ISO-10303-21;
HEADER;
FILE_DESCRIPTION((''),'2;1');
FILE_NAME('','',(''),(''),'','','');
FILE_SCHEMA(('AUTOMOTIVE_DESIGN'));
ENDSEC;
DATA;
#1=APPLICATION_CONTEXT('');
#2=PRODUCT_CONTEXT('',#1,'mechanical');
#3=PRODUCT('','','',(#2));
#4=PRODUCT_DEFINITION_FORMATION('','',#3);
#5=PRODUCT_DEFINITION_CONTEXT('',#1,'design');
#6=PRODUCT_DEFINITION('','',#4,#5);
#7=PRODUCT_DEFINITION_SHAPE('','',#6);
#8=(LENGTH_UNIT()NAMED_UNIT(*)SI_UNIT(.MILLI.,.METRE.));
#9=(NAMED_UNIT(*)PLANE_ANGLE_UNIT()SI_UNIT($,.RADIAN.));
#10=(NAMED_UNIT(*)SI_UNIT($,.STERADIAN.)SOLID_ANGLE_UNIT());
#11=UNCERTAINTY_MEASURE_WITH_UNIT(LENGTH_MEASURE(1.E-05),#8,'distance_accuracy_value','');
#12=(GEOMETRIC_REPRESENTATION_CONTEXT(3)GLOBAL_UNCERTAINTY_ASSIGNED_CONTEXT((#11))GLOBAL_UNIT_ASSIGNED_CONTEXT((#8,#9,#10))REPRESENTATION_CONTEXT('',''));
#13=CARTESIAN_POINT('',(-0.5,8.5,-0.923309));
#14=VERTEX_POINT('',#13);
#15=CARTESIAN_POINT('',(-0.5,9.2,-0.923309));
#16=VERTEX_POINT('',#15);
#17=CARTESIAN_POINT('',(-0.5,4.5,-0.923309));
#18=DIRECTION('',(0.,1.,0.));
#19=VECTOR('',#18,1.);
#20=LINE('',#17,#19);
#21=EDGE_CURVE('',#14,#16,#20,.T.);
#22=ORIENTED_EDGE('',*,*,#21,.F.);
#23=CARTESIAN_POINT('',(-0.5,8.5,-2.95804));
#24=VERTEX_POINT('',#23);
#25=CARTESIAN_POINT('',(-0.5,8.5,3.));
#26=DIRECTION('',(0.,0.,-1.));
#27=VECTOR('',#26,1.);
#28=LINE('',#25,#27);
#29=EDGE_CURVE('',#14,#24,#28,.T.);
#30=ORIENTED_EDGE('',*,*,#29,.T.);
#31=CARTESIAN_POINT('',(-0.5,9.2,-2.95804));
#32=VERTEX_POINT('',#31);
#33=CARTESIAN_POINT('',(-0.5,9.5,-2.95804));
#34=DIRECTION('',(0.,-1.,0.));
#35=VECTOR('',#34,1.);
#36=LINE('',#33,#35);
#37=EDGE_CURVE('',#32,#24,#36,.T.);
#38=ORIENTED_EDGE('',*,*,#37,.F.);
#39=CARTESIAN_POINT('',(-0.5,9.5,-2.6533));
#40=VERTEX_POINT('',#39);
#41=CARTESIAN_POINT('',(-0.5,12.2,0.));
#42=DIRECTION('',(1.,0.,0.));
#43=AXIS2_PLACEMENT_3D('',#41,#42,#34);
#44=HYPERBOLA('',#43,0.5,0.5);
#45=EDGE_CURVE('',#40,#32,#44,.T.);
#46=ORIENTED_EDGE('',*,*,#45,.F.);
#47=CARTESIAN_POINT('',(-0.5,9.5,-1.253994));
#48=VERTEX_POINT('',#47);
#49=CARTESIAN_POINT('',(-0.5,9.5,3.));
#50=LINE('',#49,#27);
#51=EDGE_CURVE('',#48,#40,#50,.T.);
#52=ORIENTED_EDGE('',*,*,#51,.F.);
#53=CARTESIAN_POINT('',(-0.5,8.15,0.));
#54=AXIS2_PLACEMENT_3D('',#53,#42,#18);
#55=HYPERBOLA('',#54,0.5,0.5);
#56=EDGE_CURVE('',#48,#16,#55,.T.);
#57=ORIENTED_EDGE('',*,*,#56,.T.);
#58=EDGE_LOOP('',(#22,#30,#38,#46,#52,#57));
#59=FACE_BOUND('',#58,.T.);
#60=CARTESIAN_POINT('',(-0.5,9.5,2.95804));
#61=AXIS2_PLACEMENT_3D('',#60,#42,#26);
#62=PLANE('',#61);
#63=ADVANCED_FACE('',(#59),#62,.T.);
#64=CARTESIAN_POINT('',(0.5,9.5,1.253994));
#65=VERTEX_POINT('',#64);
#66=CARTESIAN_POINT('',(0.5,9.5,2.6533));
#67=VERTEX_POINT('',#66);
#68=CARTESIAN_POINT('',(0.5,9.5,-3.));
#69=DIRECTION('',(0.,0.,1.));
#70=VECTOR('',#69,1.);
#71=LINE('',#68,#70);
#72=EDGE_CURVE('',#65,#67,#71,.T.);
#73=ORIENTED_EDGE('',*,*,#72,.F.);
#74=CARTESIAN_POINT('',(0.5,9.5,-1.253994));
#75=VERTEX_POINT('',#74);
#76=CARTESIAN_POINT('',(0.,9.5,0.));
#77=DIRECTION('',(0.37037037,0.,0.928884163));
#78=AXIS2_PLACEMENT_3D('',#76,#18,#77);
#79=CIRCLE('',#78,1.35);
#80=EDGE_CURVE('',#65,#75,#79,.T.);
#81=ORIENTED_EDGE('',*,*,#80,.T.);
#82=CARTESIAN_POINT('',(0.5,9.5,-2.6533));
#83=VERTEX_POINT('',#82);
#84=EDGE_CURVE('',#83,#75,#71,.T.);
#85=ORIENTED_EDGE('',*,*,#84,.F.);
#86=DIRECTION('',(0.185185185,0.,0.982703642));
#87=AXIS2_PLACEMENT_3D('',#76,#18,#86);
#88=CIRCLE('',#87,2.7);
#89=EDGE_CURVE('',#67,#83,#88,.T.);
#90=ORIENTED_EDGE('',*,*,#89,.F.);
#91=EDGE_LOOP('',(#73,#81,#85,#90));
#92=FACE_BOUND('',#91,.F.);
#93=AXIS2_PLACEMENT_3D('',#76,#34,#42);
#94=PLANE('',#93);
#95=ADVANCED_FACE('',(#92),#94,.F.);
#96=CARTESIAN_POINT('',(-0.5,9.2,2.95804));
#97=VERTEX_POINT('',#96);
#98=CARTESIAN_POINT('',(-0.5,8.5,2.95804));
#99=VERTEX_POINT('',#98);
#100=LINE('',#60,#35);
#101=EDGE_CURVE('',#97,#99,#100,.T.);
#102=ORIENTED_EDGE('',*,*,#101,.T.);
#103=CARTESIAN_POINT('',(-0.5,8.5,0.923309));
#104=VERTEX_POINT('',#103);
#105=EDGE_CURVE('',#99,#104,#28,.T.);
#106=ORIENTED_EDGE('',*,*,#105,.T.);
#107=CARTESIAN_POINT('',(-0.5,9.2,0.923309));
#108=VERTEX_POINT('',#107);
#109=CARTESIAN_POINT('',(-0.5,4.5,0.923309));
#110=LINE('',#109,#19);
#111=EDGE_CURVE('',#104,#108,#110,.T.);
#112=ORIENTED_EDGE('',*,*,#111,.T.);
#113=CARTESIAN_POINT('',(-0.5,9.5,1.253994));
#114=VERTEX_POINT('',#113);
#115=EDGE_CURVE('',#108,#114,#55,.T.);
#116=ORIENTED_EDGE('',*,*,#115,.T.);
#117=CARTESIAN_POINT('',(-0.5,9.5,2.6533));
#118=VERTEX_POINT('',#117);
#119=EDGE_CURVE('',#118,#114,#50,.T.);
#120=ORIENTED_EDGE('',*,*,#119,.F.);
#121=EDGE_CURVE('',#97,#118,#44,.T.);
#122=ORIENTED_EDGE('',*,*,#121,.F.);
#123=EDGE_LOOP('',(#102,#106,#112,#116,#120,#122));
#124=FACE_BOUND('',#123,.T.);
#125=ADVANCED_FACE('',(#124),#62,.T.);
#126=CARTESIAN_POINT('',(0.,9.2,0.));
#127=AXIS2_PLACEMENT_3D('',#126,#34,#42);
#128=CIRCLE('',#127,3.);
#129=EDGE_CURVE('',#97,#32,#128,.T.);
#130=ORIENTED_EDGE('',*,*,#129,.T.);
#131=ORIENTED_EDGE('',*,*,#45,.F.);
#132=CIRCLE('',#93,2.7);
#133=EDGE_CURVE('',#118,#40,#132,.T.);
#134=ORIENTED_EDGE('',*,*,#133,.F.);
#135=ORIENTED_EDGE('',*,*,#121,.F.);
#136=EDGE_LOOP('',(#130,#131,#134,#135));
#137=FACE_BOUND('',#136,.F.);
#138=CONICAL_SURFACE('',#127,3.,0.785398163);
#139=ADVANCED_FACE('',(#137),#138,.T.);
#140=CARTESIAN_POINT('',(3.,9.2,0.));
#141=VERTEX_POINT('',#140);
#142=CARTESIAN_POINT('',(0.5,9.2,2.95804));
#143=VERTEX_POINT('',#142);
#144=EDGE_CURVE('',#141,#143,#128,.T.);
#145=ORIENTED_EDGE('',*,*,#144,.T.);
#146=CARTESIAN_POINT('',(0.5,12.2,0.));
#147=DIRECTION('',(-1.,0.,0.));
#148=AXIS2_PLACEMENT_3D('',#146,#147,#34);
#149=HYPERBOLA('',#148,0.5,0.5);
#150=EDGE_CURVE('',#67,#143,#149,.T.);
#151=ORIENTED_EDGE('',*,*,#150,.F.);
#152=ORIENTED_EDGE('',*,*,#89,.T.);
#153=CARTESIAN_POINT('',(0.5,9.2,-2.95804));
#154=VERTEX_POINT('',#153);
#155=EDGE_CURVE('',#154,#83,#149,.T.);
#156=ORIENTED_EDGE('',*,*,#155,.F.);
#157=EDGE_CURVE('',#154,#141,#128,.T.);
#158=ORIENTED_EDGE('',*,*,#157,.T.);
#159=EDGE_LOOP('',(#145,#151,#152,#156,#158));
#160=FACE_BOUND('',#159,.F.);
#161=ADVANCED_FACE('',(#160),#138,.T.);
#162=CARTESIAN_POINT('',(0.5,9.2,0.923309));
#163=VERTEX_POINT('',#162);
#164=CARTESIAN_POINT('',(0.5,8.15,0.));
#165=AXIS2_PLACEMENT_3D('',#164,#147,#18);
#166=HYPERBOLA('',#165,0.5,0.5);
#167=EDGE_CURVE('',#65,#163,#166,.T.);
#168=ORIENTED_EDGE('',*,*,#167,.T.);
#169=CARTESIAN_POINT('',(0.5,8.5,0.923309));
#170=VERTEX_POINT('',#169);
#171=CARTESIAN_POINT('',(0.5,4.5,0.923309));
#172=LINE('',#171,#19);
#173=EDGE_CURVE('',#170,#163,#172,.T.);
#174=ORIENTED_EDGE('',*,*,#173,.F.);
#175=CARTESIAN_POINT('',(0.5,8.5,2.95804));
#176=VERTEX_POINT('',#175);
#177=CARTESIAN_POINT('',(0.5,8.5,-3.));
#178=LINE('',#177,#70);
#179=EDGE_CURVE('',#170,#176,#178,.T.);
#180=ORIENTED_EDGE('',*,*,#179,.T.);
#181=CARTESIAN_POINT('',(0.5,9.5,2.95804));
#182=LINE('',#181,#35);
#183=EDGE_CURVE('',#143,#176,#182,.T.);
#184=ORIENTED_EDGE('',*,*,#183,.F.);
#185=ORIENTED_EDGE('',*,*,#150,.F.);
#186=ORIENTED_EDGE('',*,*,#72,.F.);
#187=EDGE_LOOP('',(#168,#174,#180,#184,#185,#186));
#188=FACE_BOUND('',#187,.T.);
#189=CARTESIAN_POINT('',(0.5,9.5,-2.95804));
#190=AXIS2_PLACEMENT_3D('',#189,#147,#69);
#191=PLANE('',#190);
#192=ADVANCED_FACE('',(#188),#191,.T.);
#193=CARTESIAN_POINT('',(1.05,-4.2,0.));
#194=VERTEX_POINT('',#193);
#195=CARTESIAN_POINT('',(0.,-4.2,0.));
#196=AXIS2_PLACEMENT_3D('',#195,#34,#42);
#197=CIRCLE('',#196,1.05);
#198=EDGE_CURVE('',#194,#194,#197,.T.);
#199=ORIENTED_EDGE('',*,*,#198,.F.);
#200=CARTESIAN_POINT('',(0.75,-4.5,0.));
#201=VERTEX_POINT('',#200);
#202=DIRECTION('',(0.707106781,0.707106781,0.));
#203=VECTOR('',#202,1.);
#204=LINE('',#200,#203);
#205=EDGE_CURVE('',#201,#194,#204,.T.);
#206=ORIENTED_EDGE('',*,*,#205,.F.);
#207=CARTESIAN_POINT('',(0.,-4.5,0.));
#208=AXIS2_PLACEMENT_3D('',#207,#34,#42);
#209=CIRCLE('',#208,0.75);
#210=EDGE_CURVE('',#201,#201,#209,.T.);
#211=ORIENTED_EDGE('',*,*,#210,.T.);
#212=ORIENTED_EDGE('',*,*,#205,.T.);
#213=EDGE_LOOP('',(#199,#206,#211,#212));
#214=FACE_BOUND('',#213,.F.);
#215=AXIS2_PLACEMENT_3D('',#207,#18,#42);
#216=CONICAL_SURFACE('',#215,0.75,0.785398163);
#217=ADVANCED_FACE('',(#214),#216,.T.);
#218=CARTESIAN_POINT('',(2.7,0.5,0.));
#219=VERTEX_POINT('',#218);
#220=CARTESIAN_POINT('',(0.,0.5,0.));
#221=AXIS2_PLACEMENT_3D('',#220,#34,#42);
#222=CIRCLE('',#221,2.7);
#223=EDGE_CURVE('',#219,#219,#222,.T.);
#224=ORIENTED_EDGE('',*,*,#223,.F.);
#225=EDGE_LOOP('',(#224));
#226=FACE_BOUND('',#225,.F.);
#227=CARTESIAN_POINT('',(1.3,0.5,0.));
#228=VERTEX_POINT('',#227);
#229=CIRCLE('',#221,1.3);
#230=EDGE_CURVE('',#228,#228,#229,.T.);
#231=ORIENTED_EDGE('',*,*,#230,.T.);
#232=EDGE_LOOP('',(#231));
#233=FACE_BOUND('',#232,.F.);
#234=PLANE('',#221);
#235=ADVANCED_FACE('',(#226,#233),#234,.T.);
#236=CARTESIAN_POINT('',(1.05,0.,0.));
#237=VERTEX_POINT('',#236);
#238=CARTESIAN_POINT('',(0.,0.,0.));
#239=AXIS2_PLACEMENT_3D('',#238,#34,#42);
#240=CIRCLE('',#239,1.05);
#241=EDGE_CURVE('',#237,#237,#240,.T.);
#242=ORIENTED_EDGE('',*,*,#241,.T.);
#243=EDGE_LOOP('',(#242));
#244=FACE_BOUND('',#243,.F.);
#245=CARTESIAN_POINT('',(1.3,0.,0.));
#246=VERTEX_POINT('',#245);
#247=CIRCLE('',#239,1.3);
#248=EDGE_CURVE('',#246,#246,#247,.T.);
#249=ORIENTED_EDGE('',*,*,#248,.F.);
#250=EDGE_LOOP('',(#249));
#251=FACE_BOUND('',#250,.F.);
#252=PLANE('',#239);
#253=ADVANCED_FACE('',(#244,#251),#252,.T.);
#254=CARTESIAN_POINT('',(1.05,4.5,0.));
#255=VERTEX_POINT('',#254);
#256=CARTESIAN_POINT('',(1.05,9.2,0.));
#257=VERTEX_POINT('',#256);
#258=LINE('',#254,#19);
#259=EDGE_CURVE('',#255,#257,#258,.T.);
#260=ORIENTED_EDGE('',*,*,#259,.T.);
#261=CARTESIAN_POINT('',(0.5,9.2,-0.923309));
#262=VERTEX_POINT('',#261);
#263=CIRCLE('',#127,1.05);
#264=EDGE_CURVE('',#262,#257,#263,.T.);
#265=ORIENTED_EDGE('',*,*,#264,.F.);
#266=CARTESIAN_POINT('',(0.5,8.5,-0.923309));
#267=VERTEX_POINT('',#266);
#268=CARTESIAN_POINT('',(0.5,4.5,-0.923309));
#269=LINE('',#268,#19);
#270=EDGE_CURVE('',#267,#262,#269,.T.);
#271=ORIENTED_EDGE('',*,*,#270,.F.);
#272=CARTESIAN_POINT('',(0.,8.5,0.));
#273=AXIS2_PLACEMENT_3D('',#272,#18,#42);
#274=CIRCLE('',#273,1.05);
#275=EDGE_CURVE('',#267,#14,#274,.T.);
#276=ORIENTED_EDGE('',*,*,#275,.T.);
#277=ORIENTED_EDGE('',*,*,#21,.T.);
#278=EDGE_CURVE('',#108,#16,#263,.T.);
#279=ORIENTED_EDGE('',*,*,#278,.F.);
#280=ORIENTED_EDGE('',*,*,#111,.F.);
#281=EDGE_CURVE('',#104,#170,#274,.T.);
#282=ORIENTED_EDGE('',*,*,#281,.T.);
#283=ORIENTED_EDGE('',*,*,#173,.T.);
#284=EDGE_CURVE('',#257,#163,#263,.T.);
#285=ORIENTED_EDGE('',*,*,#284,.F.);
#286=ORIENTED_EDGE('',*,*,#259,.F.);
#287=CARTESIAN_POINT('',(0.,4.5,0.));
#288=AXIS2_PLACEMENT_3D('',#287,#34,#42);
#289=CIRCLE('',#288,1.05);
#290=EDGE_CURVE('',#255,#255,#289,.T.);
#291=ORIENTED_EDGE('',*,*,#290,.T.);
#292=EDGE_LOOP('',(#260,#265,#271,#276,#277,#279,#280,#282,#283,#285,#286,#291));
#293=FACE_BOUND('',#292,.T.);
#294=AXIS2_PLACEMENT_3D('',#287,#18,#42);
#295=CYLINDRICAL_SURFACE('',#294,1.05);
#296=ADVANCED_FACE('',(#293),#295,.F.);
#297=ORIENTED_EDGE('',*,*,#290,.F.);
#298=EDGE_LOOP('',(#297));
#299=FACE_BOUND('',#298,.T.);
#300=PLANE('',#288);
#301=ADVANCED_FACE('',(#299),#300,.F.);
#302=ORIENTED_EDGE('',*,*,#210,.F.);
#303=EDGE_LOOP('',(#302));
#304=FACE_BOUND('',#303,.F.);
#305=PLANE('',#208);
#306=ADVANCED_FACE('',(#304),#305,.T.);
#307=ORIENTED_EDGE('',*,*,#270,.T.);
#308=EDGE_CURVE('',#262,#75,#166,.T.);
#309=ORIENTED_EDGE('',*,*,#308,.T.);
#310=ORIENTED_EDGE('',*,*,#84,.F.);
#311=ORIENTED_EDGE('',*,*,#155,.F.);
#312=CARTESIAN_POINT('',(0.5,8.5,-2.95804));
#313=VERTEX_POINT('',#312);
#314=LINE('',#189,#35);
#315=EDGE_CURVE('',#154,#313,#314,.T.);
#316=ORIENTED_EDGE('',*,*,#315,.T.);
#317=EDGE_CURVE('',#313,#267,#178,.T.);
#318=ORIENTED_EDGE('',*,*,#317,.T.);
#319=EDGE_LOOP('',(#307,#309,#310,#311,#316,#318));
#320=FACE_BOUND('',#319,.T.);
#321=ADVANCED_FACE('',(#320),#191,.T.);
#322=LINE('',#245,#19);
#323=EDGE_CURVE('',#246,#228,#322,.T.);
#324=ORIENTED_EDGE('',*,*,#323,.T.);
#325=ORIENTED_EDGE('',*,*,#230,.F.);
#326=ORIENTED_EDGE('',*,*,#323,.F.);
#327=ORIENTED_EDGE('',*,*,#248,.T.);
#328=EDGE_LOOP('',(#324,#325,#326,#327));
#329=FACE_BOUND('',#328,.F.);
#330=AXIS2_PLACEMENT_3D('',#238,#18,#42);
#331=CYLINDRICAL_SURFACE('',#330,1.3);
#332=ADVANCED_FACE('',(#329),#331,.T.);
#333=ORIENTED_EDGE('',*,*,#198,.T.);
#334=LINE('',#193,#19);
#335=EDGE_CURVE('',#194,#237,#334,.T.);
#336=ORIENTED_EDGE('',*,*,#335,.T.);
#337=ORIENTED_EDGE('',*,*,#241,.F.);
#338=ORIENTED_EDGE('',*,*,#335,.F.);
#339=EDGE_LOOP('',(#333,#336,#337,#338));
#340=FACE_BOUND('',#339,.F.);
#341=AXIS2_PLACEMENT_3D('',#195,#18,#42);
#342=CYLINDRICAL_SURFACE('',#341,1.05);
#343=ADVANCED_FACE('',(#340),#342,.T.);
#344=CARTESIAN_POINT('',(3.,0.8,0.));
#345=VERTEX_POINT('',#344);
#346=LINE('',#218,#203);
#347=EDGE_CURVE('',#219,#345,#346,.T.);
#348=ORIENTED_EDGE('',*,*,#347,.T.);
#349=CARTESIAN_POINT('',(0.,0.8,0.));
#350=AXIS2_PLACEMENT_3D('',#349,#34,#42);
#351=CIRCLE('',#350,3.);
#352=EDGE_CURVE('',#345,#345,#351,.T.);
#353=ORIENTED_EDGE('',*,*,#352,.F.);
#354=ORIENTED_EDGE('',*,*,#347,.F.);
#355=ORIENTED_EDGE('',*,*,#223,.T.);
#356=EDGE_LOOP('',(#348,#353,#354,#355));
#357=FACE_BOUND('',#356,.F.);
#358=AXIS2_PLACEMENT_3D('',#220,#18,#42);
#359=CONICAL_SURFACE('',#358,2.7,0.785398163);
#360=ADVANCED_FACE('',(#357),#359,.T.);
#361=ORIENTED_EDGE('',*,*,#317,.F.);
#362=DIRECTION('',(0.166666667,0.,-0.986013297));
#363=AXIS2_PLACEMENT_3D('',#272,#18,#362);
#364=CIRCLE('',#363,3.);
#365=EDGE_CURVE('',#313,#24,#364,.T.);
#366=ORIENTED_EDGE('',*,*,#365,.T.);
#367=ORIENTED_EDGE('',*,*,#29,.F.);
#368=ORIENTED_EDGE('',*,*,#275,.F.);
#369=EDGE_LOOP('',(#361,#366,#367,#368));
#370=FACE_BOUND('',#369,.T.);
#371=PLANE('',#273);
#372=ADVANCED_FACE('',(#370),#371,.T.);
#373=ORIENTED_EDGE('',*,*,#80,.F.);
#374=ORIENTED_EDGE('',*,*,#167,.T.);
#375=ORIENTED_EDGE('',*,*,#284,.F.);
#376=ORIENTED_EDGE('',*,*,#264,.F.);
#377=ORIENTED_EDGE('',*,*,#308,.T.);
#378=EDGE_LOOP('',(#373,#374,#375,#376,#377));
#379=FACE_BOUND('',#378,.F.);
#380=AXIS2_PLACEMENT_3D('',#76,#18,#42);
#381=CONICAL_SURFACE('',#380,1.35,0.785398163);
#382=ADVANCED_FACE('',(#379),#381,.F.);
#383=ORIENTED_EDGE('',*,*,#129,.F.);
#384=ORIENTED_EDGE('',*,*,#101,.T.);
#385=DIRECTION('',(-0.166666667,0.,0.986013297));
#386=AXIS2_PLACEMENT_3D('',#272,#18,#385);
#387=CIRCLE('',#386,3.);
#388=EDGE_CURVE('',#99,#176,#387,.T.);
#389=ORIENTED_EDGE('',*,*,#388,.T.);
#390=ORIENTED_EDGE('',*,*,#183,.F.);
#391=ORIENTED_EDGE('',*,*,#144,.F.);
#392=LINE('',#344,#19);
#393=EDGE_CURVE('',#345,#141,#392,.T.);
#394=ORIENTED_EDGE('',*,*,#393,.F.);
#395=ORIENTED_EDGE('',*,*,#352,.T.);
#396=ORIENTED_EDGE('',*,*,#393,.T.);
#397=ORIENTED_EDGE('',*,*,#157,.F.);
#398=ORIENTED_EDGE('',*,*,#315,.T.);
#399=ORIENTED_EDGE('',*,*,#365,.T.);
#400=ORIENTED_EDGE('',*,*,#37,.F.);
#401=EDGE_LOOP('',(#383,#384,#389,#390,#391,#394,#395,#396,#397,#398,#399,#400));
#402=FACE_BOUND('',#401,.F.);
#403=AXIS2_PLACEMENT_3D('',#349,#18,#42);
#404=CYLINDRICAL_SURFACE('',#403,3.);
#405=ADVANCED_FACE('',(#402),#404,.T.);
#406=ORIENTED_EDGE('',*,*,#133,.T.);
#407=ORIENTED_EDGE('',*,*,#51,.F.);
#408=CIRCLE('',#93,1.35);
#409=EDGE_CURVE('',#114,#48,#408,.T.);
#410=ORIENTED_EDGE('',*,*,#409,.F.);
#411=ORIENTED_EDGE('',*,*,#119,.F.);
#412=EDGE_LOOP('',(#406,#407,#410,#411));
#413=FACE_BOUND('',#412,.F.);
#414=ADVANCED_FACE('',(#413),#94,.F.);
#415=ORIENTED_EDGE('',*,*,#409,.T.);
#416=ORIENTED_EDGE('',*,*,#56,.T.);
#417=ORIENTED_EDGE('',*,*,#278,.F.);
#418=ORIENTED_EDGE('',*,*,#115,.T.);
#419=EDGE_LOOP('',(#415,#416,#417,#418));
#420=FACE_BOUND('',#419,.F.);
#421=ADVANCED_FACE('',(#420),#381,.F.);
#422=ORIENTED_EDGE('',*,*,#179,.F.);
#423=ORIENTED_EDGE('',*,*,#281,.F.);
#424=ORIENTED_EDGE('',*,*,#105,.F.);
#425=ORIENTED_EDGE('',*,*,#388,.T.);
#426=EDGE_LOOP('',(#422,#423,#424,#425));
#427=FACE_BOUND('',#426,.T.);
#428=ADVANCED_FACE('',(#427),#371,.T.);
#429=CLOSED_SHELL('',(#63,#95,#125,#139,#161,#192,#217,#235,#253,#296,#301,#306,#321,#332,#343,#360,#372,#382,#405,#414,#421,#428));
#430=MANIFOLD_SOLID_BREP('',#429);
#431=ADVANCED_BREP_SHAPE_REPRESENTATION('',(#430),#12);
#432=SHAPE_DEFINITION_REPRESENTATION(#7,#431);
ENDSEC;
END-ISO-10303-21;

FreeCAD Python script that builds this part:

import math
import FreeCAD as App
import Part
import Sketcher

V = App.Vector


def add_polygon(sketch, points):
    """Adds a closed chain of lines whose ends are joined by coincident constraints."""
    first, n = sketch.GeometryCount, len(points)
    for a, b in zip(points, points[1:] + points[:1]):
        sketch.addGeometry(Part.LineSegment(App.Vector(*a, 0), App.Vector(*b, 0)), False)
    for i in range(n):
        sketch.addConstraint(Sketcher.Constraint("Coincident", first + i, 2, first + (i + 1) % n, 1))

doc = App.newDocument("Part")
body = doc.addObject("PartDesign::Body", "Body")

sketch1 = doc.addObject("Sketcher::SketchObject", "Sketch")
body.addObject(sketch1)
sketch1.AttachmentSupport = (doc.XY_Plane, [""])
sketch1.MapMode = "FlatFace"
add_polygon(sketch1, [(0, 4.5), (0, -4.5), (0.75, -4.5), (1.05, -4.2), (1.05, 0), (1.3, 0), (1.3, 0.5), (2.7, 0.5), (3, 0.8), (3, 9.2), (2.7, 9.5), (1.35, 9.5), (1.05, 9.2), (1.05, 4.5)])
sketch1.addConstraint([
    Sketcher.Constraint("Vertical", 0),
    Sketcher.Constraint("Horizontal", 1),
    Sketcher.Constraint("Vertical", 3),
    Sketcher.Constraint("Horizontal", 4),
    Sketcher.Constraint("Vertical", 5),
    Sketcher.Constraint("Horizontal", 6),
    Sketcher.Constraint("Vertical", 8),
    Sketcher.Constraint("Horizontal", 10),
    Sketcher.Constraint("Vertical", 12),
    Sketcher.Constraint("Horizontal", 13),
    Sketcher.Constraint("Symmetric", 0, 2, 13, 2, -1, 1),
    Sketcher.Constraint("PointOnObject", 3, 2, -1),
    Sketcher.Constraint("Parallel", 2, 7),
    Sketcher.Constraint("Perpendicular", 7, 9),
    Sketcher.Constraint("Perpendicular", 9, 11),
    Sketcher.Constraint("Horizontal", 8, 2, 11, 2),
    Sketcher.Constraint("Vertical", 6, 2, 9, 2),
    Sketcher.Constraint("Vertical", 3, 2, 11, 2),
    Sketcher.Constraint("Equal", 2, 7),
    Sketcher.Constraint("Equal", 7, 9),
    Sketcher.Constraint("DistanceY", 0, 2, 0, 1, 9.0),
    Sketcher.Constraint("DistanceY", 5, 1, 5, 2, 0.5),
    Sketcher.Constraint("DistanceY", 6, 2, 9, 2, 9.0),
    Sketcher.Constraint("DistanceX", 1, 2, 2, 2, 0.3),
    Sketcher.Constraint("DistanceX", 6, 1, 6, 2, 1.4),
    Sketcher.Constraint("DistanceX", -1, 1, 7, 2, 3.0),
    Sketcher.Constraint("DistanceX", 1, 1, 1, 2, 0.75),
])
revolution = doc.addObject("PartDesign::Revolution", "Revolution")
body.addObject(revolution)
revolution.Profile = sketch1
revolution.ReferenceAxis = (sketch1, ["V_Axis"])
revolution.Angle = 360

sketch2 = doc.addObject("Sketcher::SketchObject", "Sketch001")
body.addObject(sketch2)
sketch2.AttachmentSupport = (doc.XZ_Plane, [""])
sketch2.MapMode = "FlatFace"
sketch2.AttachmentOffset = App.Placement(V(0, 0, -9.5), App.Rotation())
sketch2.addGeometry([
    Part.ArcOfCircle(Part.Circle(V(0, 0, 0), V(0, 0, 1), 3), math.radians(-99.59), math.radians(-80.41)),
    Part.LineSegment(V(-0.5, -3, 0), V(-0.5, 3, 0)),
    Part.ArcOfCircle(Part.Circle(V(0, 0, 0), V(0, 0, 1), 3), math.radians(80.41), math.radians(99.59)),
    Part.LineSegment(V(0.5, 3, 0), V(0.5, -3, 0)),
], False)
sketch2.addConstraint([
    Sketcher.Constraint("Coincident", 0, 1, 1, 1),
    Sketcher.Constraint("Coincident", 1, 2, 2, 2),
    Sketcher.Constraint("Coincident", 2, 1, 3, 1),
    Sketcher.Constraint("Coincident", 3, 2, 0, 2),
    Sketcher.Constraint("Vertical", 1),
    Sketcher.Constraint("Vertical", 3),
    Sketcher.Constraint("Coincident", 0, 3, -1, 1),
    Sketcher.Constraint("Coincident", 2, 3, -1, 1),
    Sketcher.Constraint("Equal", 0, 2),
    Sketcher.Constraint("Horizontal", 1, 2, 2, 1),
    Sketcher.Constraint("Radius", 0, 3.0),
    Sketcher.Constraint("DistanceX", 1, 2, 2, 1, 1.0),
])
pocket1 = doc.addObject("PartDesign::Pocket", "Pocket")
body.addObject(pocket1)
pocket1.Profile = sketch2
pocket1.Length = 1
pocket1.Reversed = True

doc.recompute()
